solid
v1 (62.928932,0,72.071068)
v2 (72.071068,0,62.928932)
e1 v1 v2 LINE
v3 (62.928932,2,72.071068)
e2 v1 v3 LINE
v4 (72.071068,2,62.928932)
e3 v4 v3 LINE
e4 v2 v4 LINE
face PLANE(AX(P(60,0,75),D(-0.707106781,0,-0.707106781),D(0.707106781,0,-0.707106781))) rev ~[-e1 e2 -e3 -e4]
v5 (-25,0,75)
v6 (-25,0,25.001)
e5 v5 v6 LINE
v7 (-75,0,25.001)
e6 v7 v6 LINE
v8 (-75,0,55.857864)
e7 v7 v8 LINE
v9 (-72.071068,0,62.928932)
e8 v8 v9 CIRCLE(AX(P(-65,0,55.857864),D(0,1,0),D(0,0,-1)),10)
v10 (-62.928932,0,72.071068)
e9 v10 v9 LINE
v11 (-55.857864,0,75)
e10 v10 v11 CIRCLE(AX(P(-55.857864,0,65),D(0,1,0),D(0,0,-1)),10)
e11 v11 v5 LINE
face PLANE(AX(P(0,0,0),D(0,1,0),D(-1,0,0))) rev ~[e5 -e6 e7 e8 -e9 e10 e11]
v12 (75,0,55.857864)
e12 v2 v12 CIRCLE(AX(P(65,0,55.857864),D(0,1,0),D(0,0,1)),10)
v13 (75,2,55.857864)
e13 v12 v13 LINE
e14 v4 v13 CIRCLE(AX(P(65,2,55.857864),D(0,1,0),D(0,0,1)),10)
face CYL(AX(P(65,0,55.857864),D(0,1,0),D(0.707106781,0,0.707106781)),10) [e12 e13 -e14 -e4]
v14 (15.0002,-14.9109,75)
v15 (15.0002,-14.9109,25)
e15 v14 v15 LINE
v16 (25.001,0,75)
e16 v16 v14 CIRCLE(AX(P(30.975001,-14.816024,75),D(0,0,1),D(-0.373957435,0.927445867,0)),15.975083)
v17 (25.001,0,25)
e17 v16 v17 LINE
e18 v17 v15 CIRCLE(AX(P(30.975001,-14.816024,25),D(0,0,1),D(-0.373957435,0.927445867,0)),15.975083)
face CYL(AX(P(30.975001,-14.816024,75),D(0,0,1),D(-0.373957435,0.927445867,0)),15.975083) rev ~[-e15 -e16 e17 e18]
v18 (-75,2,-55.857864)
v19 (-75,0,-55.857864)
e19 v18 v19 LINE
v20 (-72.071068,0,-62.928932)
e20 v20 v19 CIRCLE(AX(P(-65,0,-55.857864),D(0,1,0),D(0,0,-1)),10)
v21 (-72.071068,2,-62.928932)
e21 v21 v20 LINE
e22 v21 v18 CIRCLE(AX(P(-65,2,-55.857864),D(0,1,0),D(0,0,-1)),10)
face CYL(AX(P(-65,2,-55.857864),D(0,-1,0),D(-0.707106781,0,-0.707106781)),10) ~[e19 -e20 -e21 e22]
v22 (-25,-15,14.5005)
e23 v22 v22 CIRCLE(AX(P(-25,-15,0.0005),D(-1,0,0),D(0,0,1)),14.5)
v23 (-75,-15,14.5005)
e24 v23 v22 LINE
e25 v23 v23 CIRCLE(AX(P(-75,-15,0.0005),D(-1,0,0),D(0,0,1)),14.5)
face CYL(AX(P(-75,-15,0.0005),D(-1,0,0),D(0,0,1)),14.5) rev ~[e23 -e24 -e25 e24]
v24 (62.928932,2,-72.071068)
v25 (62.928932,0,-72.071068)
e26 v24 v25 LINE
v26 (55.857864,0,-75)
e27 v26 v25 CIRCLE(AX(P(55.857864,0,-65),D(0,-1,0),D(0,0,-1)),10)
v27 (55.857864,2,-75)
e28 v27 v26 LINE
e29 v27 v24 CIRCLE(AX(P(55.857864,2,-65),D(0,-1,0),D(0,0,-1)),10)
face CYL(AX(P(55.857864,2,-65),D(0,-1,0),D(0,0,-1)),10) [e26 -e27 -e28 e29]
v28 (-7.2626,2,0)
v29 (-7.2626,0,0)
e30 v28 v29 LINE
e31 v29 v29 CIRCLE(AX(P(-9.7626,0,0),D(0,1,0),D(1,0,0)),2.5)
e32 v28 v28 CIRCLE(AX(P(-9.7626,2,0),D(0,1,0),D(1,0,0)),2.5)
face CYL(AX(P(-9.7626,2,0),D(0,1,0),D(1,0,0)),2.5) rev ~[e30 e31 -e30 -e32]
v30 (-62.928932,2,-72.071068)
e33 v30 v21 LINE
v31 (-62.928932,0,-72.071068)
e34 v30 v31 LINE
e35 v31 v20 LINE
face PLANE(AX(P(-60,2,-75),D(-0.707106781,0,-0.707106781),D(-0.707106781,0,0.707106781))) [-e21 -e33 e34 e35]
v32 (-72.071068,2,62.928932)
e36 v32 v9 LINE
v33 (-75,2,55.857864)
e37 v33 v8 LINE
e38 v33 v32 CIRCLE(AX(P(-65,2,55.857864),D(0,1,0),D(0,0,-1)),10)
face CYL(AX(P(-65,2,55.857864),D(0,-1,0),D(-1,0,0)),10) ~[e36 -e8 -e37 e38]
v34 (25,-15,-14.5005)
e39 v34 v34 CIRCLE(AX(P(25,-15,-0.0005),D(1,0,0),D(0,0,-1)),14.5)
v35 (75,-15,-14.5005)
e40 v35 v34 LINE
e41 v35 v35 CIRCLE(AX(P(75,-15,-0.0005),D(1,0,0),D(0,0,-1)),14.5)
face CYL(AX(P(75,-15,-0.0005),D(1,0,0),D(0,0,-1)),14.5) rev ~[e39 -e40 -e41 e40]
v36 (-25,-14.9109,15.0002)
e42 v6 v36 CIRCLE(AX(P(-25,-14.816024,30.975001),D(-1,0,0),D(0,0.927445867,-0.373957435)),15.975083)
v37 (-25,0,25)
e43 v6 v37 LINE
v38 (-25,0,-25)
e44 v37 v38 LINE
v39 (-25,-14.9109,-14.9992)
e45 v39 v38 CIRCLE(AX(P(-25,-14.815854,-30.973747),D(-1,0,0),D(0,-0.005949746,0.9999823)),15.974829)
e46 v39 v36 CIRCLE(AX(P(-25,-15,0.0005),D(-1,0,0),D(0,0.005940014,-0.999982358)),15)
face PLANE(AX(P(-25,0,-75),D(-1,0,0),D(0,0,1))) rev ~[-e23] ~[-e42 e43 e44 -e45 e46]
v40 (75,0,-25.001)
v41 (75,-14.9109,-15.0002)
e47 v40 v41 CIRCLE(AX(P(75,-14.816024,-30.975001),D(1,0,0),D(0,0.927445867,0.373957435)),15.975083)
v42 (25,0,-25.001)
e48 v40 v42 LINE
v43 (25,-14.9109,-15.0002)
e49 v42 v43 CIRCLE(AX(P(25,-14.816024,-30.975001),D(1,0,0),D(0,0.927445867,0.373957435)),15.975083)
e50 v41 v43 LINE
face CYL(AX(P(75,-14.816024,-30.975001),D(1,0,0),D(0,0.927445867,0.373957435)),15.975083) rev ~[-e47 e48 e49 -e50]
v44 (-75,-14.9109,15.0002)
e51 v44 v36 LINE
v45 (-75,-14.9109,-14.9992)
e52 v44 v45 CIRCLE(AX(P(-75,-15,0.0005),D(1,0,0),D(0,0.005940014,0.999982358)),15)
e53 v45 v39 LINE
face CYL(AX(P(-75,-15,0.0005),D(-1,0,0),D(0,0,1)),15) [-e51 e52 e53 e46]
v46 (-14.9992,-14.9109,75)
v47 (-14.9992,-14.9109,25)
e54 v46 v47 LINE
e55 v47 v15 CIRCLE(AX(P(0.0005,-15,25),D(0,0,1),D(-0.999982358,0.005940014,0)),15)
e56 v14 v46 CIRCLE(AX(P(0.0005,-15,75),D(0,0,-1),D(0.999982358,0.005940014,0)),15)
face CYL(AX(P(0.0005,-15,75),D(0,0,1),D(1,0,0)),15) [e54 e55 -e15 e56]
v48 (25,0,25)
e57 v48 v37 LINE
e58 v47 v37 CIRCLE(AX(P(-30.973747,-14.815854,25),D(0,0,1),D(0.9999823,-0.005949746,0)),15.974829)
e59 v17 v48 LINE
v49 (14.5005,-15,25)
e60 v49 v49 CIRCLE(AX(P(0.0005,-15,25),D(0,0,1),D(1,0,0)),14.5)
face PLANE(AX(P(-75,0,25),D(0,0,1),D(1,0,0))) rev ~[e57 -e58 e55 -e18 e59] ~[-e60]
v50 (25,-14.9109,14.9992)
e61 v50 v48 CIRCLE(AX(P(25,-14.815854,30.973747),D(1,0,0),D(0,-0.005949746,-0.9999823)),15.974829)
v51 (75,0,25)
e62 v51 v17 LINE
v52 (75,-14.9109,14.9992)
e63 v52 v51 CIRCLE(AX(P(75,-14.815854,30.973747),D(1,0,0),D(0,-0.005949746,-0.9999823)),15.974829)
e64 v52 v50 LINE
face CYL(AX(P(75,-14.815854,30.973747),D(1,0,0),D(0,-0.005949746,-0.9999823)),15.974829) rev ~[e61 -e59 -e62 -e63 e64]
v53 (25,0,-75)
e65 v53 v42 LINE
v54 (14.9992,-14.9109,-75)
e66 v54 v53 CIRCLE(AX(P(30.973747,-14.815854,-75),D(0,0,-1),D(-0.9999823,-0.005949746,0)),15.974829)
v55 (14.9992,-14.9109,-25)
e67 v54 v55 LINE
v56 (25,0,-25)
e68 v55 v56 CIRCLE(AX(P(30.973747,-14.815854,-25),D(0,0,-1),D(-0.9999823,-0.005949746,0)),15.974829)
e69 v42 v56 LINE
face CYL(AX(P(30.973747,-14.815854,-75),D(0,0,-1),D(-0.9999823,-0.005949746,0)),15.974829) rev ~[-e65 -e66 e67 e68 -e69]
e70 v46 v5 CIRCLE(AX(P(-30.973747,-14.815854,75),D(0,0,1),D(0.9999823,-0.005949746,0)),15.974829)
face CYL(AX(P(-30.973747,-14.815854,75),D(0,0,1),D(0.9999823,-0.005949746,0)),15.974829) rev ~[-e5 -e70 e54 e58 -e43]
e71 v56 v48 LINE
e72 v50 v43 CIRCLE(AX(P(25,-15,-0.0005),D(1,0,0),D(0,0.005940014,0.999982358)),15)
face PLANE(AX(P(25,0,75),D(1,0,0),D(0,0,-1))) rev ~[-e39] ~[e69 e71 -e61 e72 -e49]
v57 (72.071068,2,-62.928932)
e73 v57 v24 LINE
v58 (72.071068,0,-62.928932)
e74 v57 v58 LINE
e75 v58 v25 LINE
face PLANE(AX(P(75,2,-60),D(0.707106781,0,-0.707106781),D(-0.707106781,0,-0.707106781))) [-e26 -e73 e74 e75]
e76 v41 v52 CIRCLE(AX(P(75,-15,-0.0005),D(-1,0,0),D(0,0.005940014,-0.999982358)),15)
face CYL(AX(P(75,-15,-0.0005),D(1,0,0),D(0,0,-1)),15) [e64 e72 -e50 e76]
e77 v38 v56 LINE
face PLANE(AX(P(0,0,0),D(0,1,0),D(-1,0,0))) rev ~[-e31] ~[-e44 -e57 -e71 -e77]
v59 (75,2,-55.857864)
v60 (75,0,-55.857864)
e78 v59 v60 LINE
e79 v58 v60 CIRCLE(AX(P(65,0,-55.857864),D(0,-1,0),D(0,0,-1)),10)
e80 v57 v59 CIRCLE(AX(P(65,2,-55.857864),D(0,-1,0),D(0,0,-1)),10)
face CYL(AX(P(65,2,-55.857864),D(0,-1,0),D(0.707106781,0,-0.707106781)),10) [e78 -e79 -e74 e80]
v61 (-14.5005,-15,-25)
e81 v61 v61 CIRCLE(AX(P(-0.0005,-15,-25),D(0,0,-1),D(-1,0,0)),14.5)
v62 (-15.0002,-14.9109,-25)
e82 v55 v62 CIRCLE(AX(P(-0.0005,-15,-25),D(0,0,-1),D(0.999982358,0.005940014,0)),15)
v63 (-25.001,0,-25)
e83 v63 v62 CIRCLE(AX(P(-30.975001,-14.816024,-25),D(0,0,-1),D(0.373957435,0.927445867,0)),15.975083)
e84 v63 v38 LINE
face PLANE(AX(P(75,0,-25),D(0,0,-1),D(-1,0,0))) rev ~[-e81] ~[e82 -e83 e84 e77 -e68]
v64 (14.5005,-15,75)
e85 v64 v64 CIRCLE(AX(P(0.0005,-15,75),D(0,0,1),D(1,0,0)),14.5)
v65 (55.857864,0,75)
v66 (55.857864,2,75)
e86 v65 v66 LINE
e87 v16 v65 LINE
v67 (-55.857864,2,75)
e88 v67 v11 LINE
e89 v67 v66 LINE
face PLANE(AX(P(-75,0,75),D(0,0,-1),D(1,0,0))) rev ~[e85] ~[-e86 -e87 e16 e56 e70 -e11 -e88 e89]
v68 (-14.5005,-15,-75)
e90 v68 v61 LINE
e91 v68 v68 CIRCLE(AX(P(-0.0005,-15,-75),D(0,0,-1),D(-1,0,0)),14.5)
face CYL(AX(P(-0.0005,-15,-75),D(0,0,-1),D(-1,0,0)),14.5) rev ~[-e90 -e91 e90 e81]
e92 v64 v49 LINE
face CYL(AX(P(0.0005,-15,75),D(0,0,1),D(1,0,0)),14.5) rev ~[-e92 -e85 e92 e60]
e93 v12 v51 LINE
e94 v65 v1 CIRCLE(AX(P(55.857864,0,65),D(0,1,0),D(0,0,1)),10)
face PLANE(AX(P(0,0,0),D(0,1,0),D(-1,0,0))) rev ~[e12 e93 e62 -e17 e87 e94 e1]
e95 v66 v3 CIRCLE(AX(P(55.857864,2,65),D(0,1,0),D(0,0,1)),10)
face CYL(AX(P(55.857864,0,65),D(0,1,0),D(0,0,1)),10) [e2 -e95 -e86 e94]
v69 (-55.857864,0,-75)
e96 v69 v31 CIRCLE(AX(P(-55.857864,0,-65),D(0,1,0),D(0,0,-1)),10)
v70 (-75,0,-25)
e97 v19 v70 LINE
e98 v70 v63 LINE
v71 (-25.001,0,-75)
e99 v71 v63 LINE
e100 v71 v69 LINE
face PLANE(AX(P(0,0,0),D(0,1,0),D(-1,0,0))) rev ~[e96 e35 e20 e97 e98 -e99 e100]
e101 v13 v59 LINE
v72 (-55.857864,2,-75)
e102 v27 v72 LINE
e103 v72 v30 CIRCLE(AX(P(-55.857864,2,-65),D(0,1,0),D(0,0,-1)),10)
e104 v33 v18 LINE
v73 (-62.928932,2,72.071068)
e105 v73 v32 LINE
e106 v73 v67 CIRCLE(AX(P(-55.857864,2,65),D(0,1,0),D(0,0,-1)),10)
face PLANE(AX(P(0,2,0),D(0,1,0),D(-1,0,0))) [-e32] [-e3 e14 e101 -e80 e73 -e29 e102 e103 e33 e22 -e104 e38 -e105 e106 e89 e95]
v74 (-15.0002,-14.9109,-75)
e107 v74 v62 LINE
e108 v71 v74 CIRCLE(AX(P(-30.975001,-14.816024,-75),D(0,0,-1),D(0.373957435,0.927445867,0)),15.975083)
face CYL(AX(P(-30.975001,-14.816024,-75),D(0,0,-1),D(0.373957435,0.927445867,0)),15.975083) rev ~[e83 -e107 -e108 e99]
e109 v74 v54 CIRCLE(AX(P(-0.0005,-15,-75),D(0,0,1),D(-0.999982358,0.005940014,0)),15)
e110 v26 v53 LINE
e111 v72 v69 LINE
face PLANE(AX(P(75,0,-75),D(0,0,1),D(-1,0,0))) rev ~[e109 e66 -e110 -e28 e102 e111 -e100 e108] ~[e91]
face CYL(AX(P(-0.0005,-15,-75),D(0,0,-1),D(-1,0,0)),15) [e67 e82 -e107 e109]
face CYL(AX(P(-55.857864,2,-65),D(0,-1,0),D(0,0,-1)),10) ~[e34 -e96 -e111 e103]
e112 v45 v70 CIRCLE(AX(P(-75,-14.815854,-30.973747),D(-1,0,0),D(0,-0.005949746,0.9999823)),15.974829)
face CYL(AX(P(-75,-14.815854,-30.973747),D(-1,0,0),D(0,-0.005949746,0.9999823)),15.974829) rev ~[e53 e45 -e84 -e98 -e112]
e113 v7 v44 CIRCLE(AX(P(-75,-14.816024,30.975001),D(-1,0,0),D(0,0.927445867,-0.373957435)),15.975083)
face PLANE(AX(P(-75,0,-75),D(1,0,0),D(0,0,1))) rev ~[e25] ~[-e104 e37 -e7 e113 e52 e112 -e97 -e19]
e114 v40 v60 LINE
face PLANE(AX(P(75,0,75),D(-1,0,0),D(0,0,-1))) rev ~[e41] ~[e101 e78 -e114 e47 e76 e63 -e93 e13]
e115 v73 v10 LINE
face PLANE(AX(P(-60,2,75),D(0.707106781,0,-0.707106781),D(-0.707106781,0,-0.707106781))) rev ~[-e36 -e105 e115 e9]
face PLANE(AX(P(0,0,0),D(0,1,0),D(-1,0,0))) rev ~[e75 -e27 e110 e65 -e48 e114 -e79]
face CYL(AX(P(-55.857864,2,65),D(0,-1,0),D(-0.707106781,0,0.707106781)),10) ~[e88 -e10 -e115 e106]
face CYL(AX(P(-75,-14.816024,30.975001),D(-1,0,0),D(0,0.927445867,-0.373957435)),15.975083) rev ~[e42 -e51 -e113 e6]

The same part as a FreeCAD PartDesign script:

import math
import FreeCAD as App
import Part
import Sketcher

V = App.Vector


def edges_at(feature, points):
    """Names of the edges that pass closest to the given points."""
    edges = feature.Shape.Edges
    near = lambda p: min(range(len(edges)), key=lambda i: edges[i].distToShape(Part.Vertex(*p))[0])
    return sorted({f"Edge{near(p) + 1}" for p in points})


def add_polygon(sketch, points):
    """Adds a closed chain of lines whose ends are joined by coincident constraints."""
    first, n = sketch.GeometryCount, len(points)
    for a, b in zip(points, points[1:] + points[:1]):
        sketch.addGeometry(Part.LineSegment(App.Vector(*a, 0), App.Vector(*b, 0)), False)
    for i in range(n):
        sketch.addConstraint(Sketcher.Constraint("Coincident", first + i, 2, first + (i + 1) % n, 1))

doc = App.newDocument("Part")
params = doc.addObject("Spreadsheet::Sheet", "Params")
for row, (alias, value) in enumerate([
    ("sketch1_width", "150 mm"),
    ("pad1_length", "2 mm"),
    ("sketch2_radius", "15 mm"),
    ("sketch2_diameter", "29 mm"),
    ("pad2_length", "50 mm"),
    ("sketch3_width", "15 mm"),
    ("pocket1_length", "50 mm"),
    ("sketch4_width", "15 mm"),
    ("pocket2_length", "50 mm"),
    ("sketch5_width", "15 mm"),
    ("pocket3_length", "50 mm"),
    ("sketch6_width", "15 mm"),
    ("pocket4_length", "50 mm"),
    ("fillet_radius", "10 mm"),
    ("sketch7_diameter", "5 mm"),
    ("pocket5_length", "5 mm"),
], start=1):
    params.set(f"A{row}", alias)
    params.set(f"B{row}", "=" + value)
    params.setAlias(f"B{row}", alias)

body = doc.addObject("PartDesign::Body", "Body")

sketch1 = body.newObject("Sketcher::SketchObject", "Sketch")
sketch1.AttachmentSupport = (doc.getObject("XZ_Plane"), [""])
sketch1.MapMode = "FlatFace"
add_polygon(sketch1, [(-75, -75), (-75, 75), (75, 75), (75, -75)])
sketch1.addConstraint([
    Sketcher.Constraint("Vertical", 0),
    Sketcher.Constraint("Horizontal", 1),
    Sketcher.Constraint("Vertical", 2),
    Sketcher.Constraint("Horizontal", 3),
    Sketcher.Constraint("Symmetric", 0, 2, 2, 2, -1, 1),
    Sketcher.Constraint("Equal", 3, 0),
    Sketcher.Constraint("DistanceX", 1, 1, 1, 2, 150.0),
])
sketch1.setExpression("Constraints[10]", "Params.sketch1_width")
pad1 = body.newObject("PartDesign::Pad", "Pad")
pad1.Profile = sketch1
pad1.setExpression("Length", "Params.pad1_length")
pad1.Reversed = True

sketch2 = body.newObject("Sketcher::SketchObject", "Sketch001")
sketch2.AttachmentSupport = (doc.getObject("YZ_Plane"), [""])
sketch2.MapMode = "FlatFace"
sketch2.AttachmentOffset = App.Placement(V(0, 0, 75), App.Rotation())
sketch2.addGeometry([
    Part.ArcOfCircle(Part.Circle(V(-15, 31, 0), V(0, 0, 1), 16), math.radians(-90), math.radians(-22)),
    Part.ArcOfCircle(Part.Circle(V(-15, 0, 0), V(0, 0, 1), 15), math.radians(90), math.radians(270)),
    Part.ArcOfCircle(Part.Circle(V(-15, -31, 0), V(0, 0, 1), 16), math.radians(22), math.radians(90)),
    Part.LineSegment(V(0, -25, 0), V(0, 25, 0)),
    Part.Circle(V(-15, 0, 0), V(0, 0, 1), 14),
], False)
sketch2.addConstraint([
    Sketcher.Constraint("Tangent", 0, 1, 1, 1),
    Sketcher.Constraint("Tangent", 1, 2, 2, 2),
    Sketcher.Constraint("Coincident", 2, 1, 3, 1),
    Sketcher.Constraint("Coincident", 3, 2, 0, 2),
    Sketcher.Constraint("Vertical", 3),
    Sketcher.Constraint("Coincident", 4, 3, 1, 3),
    Sketcher.Constraint("Equal", 0, 2),
    Sketcher.Constraint("PointOnObject", 2, 1, -2),
    Sketcher.Constraint("Vertical", 0, 3, 2, 3),
    Sketcher.Constraint("Radius", 1, 15.0),
    Sketcher.Constraint("Diameter", 4, 29.0),
    Sketcher.Constraint("DistanceX", 1, 3, -1, 1, 15.0),
    Sketcher.Constraint("DistanceY", -1, 1, 3, 2, 25.0),
    Sketcher.Constraint("Radius", 0, 15.975),
    Sketcher.Constraint("DistanceY", 1, 2, -1, 1, 15.0002),
])
sketch2.setExpression("Constraints[9]", "Params.sketch2_radius")
sketch2.setExpression("Constraints[10]", "Params.sketch2_diameter")
pad2 = body.newObject("PartDesign::Pad", "Pad001")
pad2.Profile = sketch2
pad2.setExpression("Length", "Params.pad2_length")
pad2.Reversed = True
doc.recompute()

polarpattern = body.newObject("PartDesign::PolarPattern", "PolarPattern")
polarpattern.Originals = [pad2]
polarpattern.Axis = (doc.getObject("Y_Axis"), [""])
polarpattern.Angle = 360
polarpattern.Occurrences = 4
body.Tip = polarpattern

sketch3 = body.newObject("Sketcher::SketchObject", "Sketch002")
sketch3.AttachmentSupport = (doc.getObject("XZ_Plane"), [""])
sketch3.MapMode = "FlatFace"
add_polygon(sketch3, [(60, 75), (75, 75), (75, 60)])
sketch3.addConstraint([
    Sketcher.Constraint("Horizontal", 0),
    Sketcher.Constraint("Vertical", 1),
    Sketcher.Constraint("Equal", 0, 1),
    Sketcher.Constraint("DistanceX", 0, 1, 0, 2, 15.0),
    Sketcher.Constraint("DistanceX", -1, 1, 0, 2, 75.0),
    Sketcher.Constraint("DistanceY", -1, 1, 0, 2, 75.0),
])
sketch3.setExpression("Constraints[6]", "Params.sketch3_width")
pocket1 = body.newObject("PartDesign::Pocket", "Pocket")
pocket1.Profile = sketch3
pocket1.setExpression("Length", "Params.pocket1_length")

sketch4 = body.newObject("Sketcher::SketchObject", "Sketch003")
sketch4.AttachmentSupport = (doc.getObject("XZ_Plane"), [""])
sketch4.MapMode = "FlatFace"
sketch4.AttachmentOffset = App.Placement(V(0, 0, -2), App.Rotation())
add_polygon(sketch4, [(-60, 75), (-75, 60), (-75, 75)])
sketch4.addConstraint([
    Sketcher.Constraint("Vertical", 1),
    Sketcher.Constraint("Horizontal", 2),
    Sketcher.Constraint("Equal", 2, 1),
    Sketcher.Constraint("DistanceX", 2, 1, 2, 2, 15.0),
    Sketcher.Constraint("DistanceX", 0, 2, -1, 1, 75.0),
    Sketcher.Constraint("DistanceY", -1, 1, 0, 2, 60.0),
])
sketch4.setExpression("Constraints[6]", "Params.sketch4_width")
pocket2 = body.newObject("PartDesign::Pocket", "Pocket001")
pocket2.Profile = sketch4
pocket2.setExpression("Length", "Params.pocket2_length")
pocket2.Reversed = True

sketch5 = body.newObject("Sketcher::SketchObject", "Sketch004")
sketch5.AttachmentSupport = (doc.getObject("XZ_Plane"), [""])
sketch5.MapMode = "FlatFace"
sketch5.AttachmentOffset = App.Placement(V(0, 0, -2), App.Rotation())
add_polygon(sketch5, [(75, -60), (75, -75), (60, -75)])
sketch5.addConstraint([
    Sketcher.Constraint("Vertical", 0),
    Sketcher.Constraint("Horizontal", 1),
    Sketcher.Constraint("Equal", 1, 0),
    Sketcher.Constraint("DistanceX", 1, 2, 1, 1, 15.0),
    Sketcher.Constraint("DistanceX", -1, 1, 0, 2, 75.0),
    Sketcher.Constraint("DistanceY", 0, 2, -1, 1, 75.0),
])
sketch5.setExpression("Constraints[6]", "Params.sketch5_width")
pocket3 = body.newObject("PartDesign::Pocket", "Pocket002")
pocket3.Profile = sketch5
pocket3.setExpression("Length", "Params.pocket3_length")
pocket3.Reversed = True

sketch6 = body.newObject("Sketcher::SketchObject", "Sketch005")
sketch6.AttachmentSupport = (doc.getObject("XZ_Plane"), [""])
sketch6.MapMode = "FlatFace"
sketch6.AttachmentOffset = App.Placement(V(0, 0, -2), App.Rotation())
add_polygon(sketch6, [(-60, -75), (-75, -75), (-75, -60)])
sketch6.addConstraint([
    Sketcher.Constraint("Horizontal", 0),
    Sketcher.Constraint("Vertical", 1),
    Sketcher.Constraint("Equal", 0, 1),
    Sketcher.Constraint("DistanceX", 0, 2, 0, 1, 15.0),
    Sketcher.Constraint("DistanceX", 0, 2, -1, 1, 75.0),
    Sketcher.Constraint("DistanceY", 0, 2, -1, 1, 75.0),
])
sketch6.setExpression("Constraints[6]", "Params.sketch6_width")
pocket4 = body.newObject("PartDesign::Pocket", "Pocket003")
pocket4.Profile = sketch6
pocket4.setExpression("Length", "Params.pocket4_length")
pocket4.Reversed = True
doc.recompute()

fillet = body.newObject("PartDesign::Fillet", "Fillet")
fillet.Base = (pocket4, edges_at(pocket4, [(60, 1, -75), (75, 1, -60)]))
fillet.setExpression("Radius", "Params.fillet_radius")
doc.recompute()

polarpattern2 = body.newObject("PartDesign::PolarPattern", "PolarPattern001")
polarpattern2.Originals = [fillet]
polarpattern2.Axis = (doc.getObject("Y_Axis"), [""])
polarpattern2.Angle = 360
polarpattern2.Occurrences = 4
body.Tip = polarpattern2

sketch7 = body.newObject("Sketcher::SketchObject", "Sketch006")
sketch7.AttachmentSupport = (doc.getObject("XZ_Plane"), [""])
sketch7.MapMode = "FlatFace"
sketch7.AttachmentOffset = App.Placement(V(0, 0, -2), App.Rotation())
sketch7.addGeometry(Part.Circle(V(-9.8, 0, 0), V(0, 0, 1), 2.5), False)
sketch7.addConstraint([
    Sketcher.Constraint("PointOnObject", 0, 3, -1),
    Sketcher.Constraint("Diameter", 0, 5.0),
    Sketcher.Constraint("DistanceX", 0, 3, -1, 1, 9.7626),
])
sketch7.setExpression("Constraints[1]", "Params.sketch7_diameter")
pocket5 = body.newObject("PartDesign::Pocket", "Pocket004")
pocket5.Profile = sketch7
pocket5.setExpression("Length", "Params.pocket5_length")
pocket5.Reversed = True

doc.recompute()
